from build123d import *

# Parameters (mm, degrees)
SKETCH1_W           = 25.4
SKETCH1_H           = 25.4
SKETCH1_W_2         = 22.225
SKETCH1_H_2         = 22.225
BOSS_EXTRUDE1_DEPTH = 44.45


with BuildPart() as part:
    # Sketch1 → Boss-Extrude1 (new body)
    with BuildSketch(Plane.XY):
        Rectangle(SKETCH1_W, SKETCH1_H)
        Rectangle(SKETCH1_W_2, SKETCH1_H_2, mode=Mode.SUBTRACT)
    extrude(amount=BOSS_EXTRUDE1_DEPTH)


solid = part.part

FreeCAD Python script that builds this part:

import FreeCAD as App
import Part
import Sketcher

V = App.Vector
Q = App.Units.Quantity


def add_polygon(sketch, points):
    """Adds a closed chain of lines whose ends are joined by coincident constraints."""
    first, n = sketch.GeometryCount, len(points)
    for a, b in zip(points, points[1:] + points[:1]):
        sketch.addGeometry(Part.LineSegment(App.Vector(*a, 0), App.Vector(*b, 0)), False)
    for i in range(n):
        sketch.addConstraint(Sketcher.Constraint("Coincident", first + i, 2, first + (i + 1) % n, 1))

doc = App.newDocument("Part")
body = doc.addObject("PartDesign::Body", "Body")

# Sketch on XY plane
sketch1 = doc.addObject("Sketcher::SketchObject", "Sketch")
body.addObject(sketch1)
sketch1.AttachmentSupport = (doc.XY_Plane, [""])
sketch1.MapMode = "FlatFace"
add_polygon(sketch1, [(-13, 13), (-13, -13), (13, -13), (13, 13)])  # lines 0-3
add_polygon(sketch1, [(11, -11), (-11, -11), (-11, 11), (11, 11)])  # lines 4-7
sketch1.addConstraint([
    Sketcher.Constraint("Vertical", 0),
    Sketcher.Constraint("Horizontal", 1),
    Sketcher.Constraint("Vertical", 2),
    Sketcher.Constraint("Horizontal", 3),
    Sketcher.Constraint("Horizontal", 4),
    Sketcher.Constraint("Vertical", 5),
    Sketcher.Constraint("Horizontal", 6),
    Sketcher.Constraint("Vertical", 7),
    Sketcher.Constraint("Symmetric", 0, 2, 2, 2, -1, 1),
    Sketcher.Constraint("Symmetric", 4, 2, 6, 2, -1, 1),
    Sketcher.Constraint("Equal", 3, 0),
    Sketcher.Constraint("Equal", 6, 5),
    Sketcher.Constraint("DistanceX", 1, 1, 1, 2, Q("1 in")),
    Sketcher.Constraint("DistanceX", 4, 2, 4, 1, Q("0.875 in")),
])
pad1 = doc.addObject("PartDesign::Pad", "Pad")
body.addObject(pad1)
pad1.Profile = sketch1
pad1.Length = Q("1.75 in")

doc.recompute()
